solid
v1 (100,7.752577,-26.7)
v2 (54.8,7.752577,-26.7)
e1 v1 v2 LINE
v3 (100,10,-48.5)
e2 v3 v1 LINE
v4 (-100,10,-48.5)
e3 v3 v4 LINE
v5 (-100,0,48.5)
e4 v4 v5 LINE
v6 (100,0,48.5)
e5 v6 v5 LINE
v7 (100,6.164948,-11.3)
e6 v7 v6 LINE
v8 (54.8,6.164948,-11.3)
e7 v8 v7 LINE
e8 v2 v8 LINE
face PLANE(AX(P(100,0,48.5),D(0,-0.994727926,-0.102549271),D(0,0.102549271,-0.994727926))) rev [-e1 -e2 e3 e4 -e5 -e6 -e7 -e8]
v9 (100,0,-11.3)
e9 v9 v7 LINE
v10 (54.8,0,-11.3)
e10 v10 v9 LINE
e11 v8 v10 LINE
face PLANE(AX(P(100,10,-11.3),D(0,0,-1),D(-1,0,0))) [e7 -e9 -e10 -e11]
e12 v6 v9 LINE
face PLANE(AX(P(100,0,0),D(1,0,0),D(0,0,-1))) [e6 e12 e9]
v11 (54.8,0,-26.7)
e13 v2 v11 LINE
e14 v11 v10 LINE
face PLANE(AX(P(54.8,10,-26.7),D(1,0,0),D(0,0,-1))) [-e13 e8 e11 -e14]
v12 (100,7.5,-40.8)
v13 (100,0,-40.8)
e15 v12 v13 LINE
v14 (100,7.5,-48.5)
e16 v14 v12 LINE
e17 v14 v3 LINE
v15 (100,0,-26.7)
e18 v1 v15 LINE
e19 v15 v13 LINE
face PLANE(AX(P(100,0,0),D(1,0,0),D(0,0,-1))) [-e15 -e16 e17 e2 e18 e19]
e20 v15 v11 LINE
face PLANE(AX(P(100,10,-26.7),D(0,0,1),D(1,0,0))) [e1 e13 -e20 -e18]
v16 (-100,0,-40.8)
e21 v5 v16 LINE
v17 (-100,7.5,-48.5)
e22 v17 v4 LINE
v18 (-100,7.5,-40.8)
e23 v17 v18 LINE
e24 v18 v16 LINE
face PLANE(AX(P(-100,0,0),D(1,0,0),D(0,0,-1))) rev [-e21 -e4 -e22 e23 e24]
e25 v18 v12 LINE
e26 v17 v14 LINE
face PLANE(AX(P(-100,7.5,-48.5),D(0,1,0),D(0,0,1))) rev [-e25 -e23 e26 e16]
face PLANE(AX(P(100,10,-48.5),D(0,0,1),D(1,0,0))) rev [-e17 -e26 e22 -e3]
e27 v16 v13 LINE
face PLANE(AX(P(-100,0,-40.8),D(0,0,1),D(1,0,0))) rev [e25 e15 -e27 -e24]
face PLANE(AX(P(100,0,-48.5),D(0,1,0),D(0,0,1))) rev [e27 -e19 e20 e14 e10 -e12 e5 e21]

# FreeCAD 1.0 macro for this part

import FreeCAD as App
import Part
import Sketcher


def add_polygon(sketch, points):
    """Adds a closed chain of lines whose ends are joined by coincident constraints."""
    first, n = sketch.GeometryCount, len(points)
    for a, b in zip(points, points[1:] + points[:1]):
        sketch.addGeometry(Part.LineSegment(App.Vector(*a, 0), App.Vector(*b, 0)), False)
    for i in range(n):
        sketch.addConstraint(Sketcher.Constraint("Coincident", first + i, 2, first + (i + 1) % n, 1))

doc = App.newDocument("Part")
body = doc.addObject("PartDesign::Body", "Body")

sketch1 = body.newObject("Sketcher::SketchObject", "Sketch")
sketch1.AttachmentSupport = (doc.getObject("YZ_Plane"), [""])
sketch1.MapMode = "FlatFace"
add_polygon(sketch1, [(10, -48), (0, 48), (0, -48)])
sketch1.addConstraint(Sketcher.Constraint("Vertical", 1))
sketch1.addConstraint(Sketcher.Constraint("Horizontal", 2))
sketch1.addConstraint(Sketcher.Constraint("Symmetric", 0, 2, 1, 2, -1, 1))
sketch1.addConstraint(Sketcher.Constraint("DistanceX", 2, 1, 2, 2, 10.0))
sketch1.addConstraint(Sketcher.Constraint("DistanceY", 1, 2, 1, 1, 97.0))
pad1 = body.newObject("PartDesign::Pad", "Pad")
pad1.Profile = sketch1
pad1.Length = 200
pad1.Midplane = True

sketch2 = body.newObject("Sketcher::SketchObject", "Sketch001")
sketch2.AttachmentSupport = (doc.getObject("YZ_Plane"), [""])
sketch2.MapMode = "FlatFace"
sketch2.AttachmentOffset = App.Placement(App.Vector(0, 0, 100), App.Rotation())
add_polygon(sketch2, [(8, -41), (0, -41), (0, -48), (8, -48)])
sketch2.addConstraint(Sketcher.Constraint("Horizontal", 0))
sketch2.addConstraint(Sketcher.Constraint("Vertical", 1))
sketch2.addConstraint(Sketcher.Constraint("Horizontal", 2))
sketch2.addConstraint(Sketcher.Constraint("Vertical", 3))
sketch2.addConstraint(Sketcher.Constraint("PointOnObject", 0, 2, -2))
sketch2.addConstraint(Sketcher.Constraint("DistanceX", 0, 2, 0, 1, 7.5))
sketch2.addConstraint(Sketcher.Constraint("DistanceY", 1, 2, 1, 1, 7.7))
sketch2.addConstraint(Sketcher.Constraint("DistanceY", 0, 2, -1, 1, 40.8))
pocket1 = body.newObject("PartDesign::Pocket", "Pocket")
pocket1.Profile = sketch2
pocket1.Type = "ThroughAll"

sketch3 = body.newObject("Sketcher::SketchObject", "Sketch002")
sketch3.AttachmentSupport = (doc.getObject("XZ_Plane"), [""])
sketch3.MapMode = "FlatFace"
add_polygon(sketch3, [(55, -27), (55, -11), (100, -11), (100, -27)])
sketch3.addConstraint(Sketcher.Constraint("Vertical", 0))
sketch3.addConstraint(Sketcher.Constraint("Horizontal", 1))
sketch3.addConstraint(Sketcher.Constraint("Vertical", 2))
sketch3.addConstraint(Sketcher.Constraint("Horizontal", 3))
sketch3.addConstraint(Sketcher.Constraint("DistanceX", 1, 1, 1, 2, 45.2))
sketch3.addConstraint(Sketcher.Constraint("DistanceY", 0, 1, 0, 2, 15.4))
sketch3.addConstraint(Sketcher.Constraint("DistanceX", -1, 1, 1, 2, 100.0))
sketch3.addConstraint(Sketcher.Constraint("DistanceY", 0, 2, -1, 1, 11.3))
pocket2 = body.newObject("PartDesign::Pocket", "Pocket001")
pocket2.Profile = sketch3
pocket2.Type = "ThroughAll"

doc.recompute()
